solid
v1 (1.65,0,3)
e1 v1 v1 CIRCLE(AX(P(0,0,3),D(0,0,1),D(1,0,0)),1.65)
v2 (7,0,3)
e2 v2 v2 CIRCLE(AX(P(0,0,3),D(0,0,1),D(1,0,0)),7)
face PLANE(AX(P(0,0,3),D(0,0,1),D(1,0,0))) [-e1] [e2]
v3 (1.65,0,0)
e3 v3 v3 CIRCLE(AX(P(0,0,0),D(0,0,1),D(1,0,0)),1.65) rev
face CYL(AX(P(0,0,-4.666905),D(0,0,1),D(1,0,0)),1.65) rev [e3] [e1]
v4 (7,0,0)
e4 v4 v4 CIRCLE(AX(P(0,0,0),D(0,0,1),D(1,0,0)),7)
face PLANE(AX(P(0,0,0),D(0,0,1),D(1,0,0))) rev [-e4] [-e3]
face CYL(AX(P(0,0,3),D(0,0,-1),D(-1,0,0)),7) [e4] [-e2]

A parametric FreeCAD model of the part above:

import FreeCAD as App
import Part
import Sketcher

V = App.Vector

doc = App.newDocument("Part")
body = doc.addObject("PartDesign::Body", "Body")

# Sketch on XY plane
sketch1 = doc.addObject("Sketcher::SketchObject", "Sketch")
body.addObject(sketch1)
sketch1.AttachmentSupport = (doc.XY_Plane, [""])
sketch1.MapMode = "FlatFace"
sketch1.addGeometry(Part.Circle(V(0, 0, 0), V(0, 0, 1), 7), False)
sketch1.addConstraint(Sketcher.Constraint("Coincident", 0, 3, -1, 1))
sketch1.addConstraint(Sketcher.Constraint("Diameter", 0, 14.0))
pad1 = doc.addObject("PartDesign::Pad", "Pad")
body.addObject(pad1)
pad1.Profile = sketch1
pad1.Length = 3

# Sketch on XY plane
sketch2 = doc.addObject("Sketcher::SketchObject", "Sketch001")
body.addObject(sketch2)
sketch2.AttachmentSupport = (doc.XY_Plane, [""])
sketch2.MapMode = "FlatFace"
sketch2.AttachmentOffset = App.Placement(V(0, 0, 3), App.Rotation())
sketch2.addGeometry(Part.Circle(V(0, 0, 0), V(0, 0, 1), 1.65), False)
sketch2.addConstraint(Sketcher.Constraint("Coincident", 0, 3, -1, 1))
sketch2.addConstraint(Sketcher.Constraint("Diameter", 0, 3.3))
pocket1 = doc.addObject("PartDesign::Pocket", "Pocket")
body.addObject(pocket1)
pocket1.Profile = sketch2
pocket1.Length = 3

doc.recompute()
